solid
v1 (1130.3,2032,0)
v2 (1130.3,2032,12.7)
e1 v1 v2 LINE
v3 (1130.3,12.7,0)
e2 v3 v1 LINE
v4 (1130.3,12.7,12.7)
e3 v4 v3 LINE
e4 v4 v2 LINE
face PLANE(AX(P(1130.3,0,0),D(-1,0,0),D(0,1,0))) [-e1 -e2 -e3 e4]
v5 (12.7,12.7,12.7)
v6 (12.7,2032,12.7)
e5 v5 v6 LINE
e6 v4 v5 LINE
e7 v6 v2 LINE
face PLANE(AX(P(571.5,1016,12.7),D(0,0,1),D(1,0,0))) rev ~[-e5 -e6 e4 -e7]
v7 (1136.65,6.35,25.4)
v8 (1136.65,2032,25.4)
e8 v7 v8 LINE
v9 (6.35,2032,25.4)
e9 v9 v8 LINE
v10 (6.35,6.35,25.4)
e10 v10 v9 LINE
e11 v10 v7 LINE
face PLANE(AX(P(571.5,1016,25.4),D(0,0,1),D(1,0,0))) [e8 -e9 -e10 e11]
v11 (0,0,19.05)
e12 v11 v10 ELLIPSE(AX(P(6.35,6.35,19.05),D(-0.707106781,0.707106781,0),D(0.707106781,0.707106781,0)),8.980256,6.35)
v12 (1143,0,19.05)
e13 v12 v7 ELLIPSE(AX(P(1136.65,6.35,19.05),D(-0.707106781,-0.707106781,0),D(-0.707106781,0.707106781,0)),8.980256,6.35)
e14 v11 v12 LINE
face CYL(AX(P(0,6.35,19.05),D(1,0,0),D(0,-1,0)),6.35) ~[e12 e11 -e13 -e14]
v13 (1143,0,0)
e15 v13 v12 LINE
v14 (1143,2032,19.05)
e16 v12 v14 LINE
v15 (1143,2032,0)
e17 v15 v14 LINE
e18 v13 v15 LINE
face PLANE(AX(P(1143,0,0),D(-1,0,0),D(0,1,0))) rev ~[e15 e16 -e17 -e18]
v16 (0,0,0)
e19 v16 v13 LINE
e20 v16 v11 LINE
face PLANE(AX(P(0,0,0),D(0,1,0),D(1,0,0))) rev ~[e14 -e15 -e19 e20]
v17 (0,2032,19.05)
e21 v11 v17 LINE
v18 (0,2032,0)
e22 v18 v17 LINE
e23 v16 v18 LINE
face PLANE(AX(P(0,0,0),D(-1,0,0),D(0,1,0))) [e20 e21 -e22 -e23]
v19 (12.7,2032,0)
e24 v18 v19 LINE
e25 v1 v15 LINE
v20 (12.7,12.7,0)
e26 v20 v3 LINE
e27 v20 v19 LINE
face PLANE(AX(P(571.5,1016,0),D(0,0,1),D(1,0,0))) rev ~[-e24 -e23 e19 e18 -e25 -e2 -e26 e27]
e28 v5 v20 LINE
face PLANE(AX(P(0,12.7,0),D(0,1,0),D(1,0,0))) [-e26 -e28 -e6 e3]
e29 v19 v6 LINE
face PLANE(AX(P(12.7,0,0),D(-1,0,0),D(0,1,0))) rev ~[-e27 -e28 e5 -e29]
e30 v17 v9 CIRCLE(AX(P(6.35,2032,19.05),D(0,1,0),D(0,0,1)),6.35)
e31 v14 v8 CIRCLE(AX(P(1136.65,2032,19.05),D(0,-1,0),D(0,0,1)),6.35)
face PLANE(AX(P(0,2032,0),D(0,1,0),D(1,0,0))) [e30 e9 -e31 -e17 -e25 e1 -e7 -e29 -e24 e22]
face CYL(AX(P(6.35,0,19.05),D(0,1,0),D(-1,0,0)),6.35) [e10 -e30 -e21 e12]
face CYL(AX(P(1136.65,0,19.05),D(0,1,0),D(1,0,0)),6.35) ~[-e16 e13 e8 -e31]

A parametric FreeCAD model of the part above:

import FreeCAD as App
import Part
import Sketcher
Q = App.Units.Quantity


def edges_at(feature, points):
    """Names of the edges that pass closest to the given points."""
    edges = feature.Shape.Edges
    near = lambda p: min(range(len(edges)), key=lambda i: edges[i].distToShape(Part.Vertex(*p))[0])
    return sorted({f"Edge{near(p) + 1}" for p in points})


def faces_at(feature, points):
    """Names of the faces that lie closest to the given points."""
    faces = feature.Shape.Faces
    near = lambda p: min(range(len(faces)), key=lambda i: faces[i].distToShape(Part.Vertex(*p))[0])
    return sorted({f"Face{near(p) + 1}" for p in points})

doc = App.newDocument("Part")
body = doc.addObject("PartDesign::Body", "Body")

# Sketch on XY plane
sketch1 = body.newObject("Sketcher::SketchObject", "Sketch")
sketch1.AttachmentSupport = (doc.getObject("XY_Plane"), [""])
sketch1.MapMode = "FlatFace"
sketch1.addGeometry([
    Part.LineSegment(App.Vector(0, 2032, 0), App.Vector(0, 0, 0)),
    Part.LineSegment(App.Vector(0, 0, 0), App.Vector(1143, 0, 0)),
    Part.LineSegment(App.Vector(1143, 0, 0), App.Vector(1143, 2032, 0)),
    Part.LineSegment(App.Vector(1143, 2032, 0), App.Vector(0, 2032, 0)),
], False)
sketch1.addConstraint([
    Sketcher.Constraint("Coincident", 0, 2, 1, 1),
    Sketcher.Constraint("Coincident", 1, 2, 2, 1),
    Sketcher.Constraint("Coincident", 2, 2, 3, 1),
    Sketcher.Constraint("Coincident", 3, 2, 0, 1),
    Sketcher.Constraint("Vertical", 0),
    Sketcher.Constraint("Horizontal", 1),
    Sketcher.Constraint("Vertical", 2),
    Sketcher.Constraint("Horizontal", 3),
    Sketcher.Constraint("Coincident", 0, 2, -1, 1),
    Sketcher.Constraint("DistanceX", 1, 1, 1, 2, Q("45 in")),
    Sketcher.Constraint("DistanceY", 0, 2, 0, 1, Q("80 in")),
])
pad1 = body.newObject("PartDesign::Pad", "Pad")
pad1.Profile = sketch1
pad1.Length = Q("1 in")
doc.recompute()

thickness = body.newObject("PartDesign::Thickness", "Thickness")
thickness.Base = (pad1, faces_at(pad1, [(571.5, 1016, 0), (571.5, 2032, 12.7)]))
thickness.Value = Q("0.5 in")
thickness.Reversed = True
thickness.Join = "Arc"
doc.recompute()

fillet = body.newObject("PartDesign::Fillet", "Fillet")
fillet.Base = (thickness, edges_at(thickness, [(1143, 1016, 25.4), (571.5, 0, 25.4), (0, 1016, 25.4)]))
fillet.Radius = Q("0.25 in")

doc.recompute()
